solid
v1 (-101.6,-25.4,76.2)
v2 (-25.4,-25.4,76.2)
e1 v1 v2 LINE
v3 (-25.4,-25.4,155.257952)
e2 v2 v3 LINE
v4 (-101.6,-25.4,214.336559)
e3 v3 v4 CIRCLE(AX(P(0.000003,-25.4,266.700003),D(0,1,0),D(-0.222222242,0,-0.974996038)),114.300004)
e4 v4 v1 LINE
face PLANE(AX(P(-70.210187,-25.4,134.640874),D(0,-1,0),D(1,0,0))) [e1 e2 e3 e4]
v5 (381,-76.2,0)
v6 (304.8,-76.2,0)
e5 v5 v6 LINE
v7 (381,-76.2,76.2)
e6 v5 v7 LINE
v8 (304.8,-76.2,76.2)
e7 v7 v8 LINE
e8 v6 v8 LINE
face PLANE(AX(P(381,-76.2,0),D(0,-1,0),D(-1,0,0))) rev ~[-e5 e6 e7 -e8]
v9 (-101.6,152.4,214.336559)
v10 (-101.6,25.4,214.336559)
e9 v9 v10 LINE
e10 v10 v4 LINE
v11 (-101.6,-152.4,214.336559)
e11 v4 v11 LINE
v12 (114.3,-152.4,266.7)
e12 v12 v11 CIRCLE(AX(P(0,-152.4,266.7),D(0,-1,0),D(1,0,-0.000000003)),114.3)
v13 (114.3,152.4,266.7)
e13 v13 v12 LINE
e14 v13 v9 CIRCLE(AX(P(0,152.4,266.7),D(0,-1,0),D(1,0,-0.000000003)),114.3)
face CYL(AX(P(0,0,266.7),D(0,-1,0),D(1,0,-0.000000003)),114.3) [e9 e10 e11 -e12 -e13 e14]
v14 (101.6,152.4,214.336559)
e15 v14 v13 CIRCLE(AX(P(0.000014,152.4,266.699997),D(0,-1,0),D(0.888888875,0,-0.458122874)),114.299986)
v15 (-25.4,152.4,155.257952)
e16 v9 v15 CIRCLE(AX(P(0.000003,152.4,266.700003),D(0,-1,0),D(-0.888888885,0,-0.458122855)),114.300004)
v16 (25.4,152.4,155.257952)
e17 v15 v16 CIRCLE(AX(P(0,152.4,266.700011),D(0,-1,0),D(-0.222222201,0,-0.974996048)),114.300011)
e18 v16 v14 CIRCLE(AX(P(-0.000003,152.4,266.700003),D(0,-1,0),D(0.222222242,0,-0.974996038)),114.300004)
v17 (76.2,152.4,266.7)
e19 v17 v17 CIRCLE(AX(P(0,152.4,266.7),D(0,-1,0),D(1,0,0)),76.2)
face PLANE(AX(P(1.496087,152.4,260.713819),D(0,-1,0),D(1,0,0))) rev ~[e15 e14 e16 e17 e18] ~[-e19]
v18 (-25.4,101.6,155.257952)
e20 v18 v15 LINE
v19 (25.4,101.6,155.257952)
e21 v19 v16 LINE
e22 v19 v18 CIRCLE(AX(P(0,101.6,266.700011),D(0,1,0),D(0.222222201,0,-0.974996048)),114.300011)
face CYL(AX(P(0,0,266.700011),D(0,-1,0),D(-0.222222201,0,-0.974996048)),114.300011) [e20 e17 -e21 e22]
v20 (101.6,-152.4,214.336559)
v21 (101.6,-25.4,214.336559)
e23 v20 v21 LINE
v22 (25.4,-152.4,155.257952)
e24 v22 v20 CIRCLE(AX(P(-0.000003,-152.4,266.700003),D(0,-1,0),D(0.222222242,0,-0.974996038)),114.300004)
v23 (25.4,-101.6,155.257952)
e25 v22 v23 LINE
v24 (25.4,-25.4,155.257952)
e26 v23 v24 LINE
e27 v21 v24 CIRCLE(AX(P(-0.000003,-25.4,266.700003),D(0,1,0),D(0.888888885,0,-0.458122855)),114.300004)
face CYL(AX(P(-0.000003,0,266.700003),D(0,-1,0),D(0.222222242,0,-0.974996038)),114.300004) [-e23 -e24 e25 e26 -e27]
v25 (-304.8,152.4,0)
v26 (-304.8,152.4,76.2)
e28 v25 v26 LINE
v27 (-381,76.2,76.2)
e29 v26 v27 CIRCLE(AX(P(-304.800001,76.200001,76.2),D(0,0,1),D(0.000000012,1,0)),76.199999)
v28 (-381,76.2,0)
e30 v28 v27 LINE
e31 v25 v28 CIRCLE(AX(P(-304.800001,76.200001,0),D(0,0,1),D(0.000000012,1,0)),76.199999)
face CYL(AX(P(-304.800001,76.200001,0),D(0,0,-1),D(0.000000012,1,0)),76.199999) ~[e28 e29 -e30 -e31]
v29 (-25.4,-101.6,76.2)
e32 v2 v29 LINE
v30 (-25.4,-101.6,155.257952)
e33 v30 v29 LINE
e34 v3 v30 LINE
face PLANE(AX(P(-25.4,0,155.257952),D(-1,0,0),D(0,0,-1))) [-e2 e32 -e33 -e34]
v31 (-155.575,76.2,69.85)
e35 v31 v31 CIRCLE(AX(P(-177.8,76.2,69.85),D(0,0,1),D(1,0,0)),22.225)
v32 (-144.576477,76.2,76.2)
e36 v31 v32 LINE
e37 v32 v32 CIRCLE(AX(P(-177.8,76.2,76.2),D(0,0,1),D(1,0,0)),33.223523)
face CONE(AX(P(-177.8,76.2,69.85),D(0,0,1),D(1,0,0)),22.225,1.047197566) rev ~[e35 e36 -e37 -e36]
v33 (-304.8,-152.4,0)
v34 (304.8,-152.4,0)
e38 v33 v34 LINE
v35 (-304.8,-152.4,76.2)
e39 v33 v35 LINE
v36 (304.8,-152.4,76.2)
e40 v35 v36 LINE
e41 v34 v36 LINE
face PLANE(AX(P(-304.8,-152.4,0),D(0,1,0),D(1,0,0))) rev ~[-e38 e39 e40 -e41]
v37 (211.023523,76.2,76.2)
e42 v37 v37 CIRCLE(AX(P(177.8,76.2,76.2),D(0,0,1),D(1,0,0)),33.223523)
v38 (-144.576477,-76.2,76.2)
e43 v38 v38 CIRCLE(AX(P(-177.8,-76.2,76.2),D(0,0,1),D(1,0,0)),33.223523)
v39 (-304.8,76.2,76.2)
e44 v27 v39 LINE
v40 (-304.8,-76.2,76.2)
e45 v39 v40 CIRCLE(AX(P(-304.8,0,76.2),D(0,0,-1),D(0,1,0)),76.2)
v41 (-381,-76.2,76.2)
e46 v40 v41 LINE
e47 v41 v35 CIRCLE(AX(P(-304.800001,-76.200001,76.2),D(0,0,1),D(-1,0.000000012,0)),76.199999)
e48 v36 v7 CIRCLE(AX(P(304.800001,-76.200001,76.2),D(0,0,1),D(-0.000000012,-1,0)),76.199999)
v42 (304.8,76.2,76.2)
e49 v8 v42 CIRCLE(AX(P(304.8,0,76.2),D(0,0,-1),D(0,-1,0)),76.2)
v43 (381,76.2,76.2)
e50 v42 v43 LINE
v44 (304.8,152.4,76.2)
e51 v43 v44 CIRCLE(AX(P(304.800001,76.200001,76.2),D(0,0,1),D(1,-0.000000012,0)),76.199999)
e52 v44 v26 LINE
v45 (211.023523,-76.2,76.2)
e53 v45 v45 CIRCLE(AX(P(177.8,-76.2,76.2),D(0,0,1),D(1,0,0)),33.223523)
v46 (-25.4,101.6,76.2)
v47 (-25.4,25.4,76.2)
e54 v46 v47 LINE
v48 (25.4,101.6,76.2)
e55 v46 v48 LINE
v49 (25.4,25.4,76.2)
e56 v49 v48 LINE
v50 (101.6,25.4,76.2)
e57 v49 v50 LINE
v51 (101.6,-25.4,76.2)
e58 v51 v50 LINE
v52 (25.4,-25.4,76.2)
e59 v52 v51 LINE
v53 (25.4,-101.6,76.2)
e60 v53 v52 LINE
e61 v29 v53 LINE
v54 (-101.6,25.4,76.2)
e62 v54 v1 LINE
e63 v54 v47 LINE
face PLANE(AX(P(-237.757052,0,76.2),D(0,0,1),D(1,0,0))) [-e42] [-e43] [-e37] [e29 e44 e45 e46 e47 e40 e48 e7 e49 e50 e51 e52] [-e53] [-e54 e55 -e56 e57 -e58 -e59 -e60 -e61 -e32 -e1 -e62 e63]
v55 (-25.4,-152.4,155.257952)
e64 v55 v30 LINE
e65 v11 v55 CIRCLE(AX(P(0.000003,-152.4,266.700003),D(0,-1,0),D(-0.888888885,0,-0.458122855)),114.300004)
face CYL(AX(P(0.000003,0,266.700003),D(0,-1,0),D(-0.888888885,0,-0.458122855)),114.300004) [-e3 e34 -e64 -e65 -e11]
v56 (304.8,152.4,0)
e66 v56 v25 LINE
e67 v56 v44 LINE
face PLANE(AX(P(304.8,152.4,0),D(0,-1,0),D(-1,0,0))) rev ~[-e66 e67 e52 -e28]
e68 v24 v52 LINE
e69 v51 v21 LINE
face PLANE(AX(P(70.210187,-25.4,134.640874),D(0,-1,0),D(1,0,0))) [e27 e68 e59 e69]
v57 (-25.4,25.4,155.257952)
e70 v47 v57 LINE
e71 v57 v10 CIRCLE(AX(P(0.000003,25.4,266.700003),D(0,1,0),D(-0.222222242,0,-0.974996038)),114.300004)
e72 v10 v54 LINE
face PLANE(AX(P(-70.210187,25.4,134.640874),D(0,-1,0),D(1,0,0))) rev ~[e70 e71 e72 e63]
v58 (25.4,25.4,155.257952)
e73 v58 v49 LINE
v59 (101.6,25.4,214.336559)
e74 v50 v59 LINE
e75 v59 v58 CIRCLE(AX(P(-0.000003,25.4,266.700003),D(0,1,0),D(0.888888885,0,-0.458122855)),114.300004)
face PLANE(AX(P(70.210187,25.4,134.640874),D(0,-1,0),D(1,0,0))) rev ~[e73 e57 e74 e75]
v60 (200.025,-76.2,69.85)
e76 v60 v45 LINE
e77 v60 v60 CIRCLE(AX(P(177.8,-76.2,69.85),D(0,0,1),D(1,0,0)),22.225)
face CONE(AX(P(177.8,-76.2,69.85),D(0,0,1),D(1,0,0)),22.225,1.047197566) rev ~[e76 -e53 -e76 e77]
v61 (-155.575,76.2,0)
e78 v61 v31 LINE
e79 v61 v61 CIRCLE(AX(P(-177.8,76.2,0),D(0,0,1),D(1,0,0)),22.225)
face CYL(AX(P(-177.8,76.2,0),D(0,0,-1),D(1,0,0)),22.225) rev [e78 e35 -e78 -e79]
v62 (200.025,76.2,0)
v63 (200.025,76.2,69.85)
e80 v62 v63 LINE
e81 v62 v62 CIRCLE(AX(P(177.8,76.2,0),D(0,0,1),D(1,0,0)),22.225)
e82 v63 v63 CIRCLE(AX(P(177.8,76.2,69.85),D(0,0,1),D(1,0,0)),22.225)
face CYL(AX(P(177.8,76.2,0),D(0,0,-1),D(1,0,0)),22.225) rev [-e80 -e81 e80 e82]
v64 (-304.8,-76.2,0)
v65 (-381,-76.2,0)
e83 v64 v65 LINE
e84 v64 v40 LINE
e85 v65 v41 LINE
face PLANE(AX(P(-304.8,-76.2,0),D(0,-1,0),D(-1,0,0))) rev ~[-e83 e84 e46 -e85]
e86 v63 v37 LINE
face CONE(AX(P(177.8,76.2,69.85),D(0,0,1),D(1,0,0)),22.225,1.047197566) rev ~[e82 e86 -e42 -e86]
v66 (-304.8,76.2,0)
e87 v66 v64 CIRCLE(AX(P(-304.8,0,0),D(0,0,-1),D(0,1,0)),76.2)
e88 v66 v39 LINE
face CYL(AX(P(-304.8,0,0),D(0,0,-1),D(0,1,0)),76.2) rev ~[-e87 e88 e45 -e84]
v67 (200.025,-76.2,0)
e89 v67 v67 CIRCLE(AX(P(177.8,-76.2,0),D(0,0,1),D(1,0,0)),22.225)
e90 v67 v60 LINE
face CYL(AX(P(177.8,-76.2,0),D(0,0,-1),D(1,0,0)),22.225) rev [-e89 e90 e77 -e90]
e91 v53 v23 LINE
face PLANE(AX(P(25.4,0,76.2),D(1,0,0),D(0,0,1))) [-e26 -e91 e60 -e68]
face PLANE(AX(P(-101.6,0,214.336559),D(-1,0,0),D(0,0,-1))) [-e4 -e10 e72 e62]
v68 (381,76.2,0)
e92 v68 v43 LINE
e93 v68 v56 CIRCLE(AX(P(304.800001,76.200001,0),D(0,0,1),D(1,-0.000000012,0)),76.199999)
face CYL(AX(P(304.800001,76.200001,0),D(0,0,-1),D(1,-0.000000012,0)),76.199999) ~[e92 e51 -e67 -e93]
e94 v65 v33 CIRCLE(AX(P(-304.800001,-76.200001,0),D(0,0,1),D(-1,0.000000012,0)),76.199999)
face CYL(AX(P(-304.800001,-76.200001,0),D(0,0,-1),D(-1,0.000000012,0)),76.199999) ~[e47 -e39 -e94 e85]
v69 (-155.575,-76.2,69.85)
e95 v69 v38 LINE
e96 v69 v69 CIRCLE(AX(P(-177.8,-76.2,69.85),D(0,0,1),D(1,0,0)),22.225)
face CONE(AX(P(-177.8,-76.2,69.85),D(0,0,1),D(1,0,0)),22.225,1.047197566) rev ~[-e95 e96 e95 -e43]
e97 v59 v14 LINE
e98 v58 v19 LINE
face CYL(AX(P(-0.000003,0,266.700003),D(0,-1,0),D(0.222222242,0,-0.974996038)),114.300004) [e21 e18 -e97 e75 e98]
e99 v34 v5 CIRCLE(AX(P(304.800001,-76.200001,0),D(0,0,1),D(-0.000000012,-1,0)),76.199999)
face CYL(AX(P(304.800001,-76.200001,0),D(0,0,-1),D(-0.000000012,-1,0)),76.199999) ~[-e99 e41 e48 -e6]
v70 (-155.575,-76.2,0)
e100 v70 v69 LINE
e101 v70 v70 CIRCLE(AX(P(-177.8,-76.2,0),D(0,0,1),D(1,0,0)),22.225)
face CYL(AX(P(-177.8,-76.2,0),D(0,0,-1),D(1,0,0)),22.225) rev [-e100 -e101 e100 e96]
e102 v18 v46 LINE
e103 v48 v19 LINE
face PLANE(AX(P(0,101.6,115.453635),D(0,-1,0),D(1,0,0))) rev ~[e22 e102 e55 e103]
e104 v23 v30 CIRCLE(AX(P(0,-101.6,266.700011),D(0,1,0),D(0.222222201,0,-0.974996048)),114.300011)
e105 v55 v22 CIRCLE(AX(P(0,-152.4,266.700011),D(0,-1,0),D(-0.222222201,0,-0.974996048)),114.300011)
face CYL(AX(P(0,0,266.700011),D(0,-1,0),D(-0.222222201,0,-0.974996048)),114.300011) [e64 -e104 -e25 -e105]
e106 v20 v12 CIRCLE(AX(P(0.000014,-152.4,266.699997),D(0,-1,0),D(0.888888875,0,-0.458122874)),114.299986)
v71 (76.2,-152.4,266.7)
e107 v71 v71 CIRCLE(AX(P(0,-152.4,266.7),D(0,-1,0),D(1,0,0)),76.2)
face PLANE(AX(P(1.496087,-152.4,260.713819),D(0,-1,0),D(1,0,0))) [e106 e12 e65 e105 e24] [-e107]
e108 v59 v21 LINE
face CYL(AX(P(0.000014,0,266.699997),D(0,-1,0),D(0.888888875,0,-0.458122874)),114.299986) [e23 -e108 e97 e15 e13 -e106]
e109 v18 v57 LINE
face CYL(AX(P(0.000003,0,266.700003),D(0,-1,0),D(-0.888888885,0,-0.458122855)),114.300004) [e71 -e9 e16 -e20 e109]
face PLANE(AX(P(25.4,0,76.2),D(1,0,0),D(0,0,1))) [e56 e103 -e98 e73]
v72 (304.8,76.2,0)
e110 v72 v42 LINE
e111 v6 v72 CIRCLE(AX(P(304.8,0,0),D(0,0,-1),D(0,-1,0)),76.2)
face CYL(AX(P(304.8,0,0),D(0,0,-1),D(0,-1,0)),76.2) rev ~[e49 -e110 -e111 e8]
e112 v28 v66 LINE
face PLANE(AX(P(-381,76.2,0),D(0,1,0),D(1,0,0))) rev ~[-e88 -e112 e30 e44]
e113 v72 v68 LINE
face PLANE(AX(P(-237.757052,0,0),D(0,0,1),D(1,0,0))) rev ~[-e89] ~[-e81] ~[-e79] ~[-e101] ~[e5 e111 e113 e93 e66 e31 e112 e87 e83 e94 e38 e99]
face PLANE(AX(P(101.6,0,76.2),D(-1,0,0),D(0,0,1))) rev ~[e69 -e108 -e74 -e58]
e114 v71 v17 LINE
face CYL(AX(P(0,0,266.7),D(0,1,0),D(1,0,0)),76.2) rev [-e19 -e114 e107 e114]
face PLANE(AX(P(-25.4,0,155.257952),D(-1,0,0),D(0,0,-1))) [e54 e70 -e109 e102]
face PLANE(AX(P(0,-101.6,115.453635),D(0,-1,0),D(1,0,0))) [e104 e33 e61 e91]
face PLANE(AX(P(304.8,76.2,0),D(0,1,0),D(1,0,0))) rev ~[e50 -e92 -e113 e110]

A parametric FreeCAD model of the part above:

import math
import FreeCAD as App
import Part
import Sketcher
Q = App.Units.Quantity


def edges_at(feature, points):
    """Names of the edges that pass closest to the given points."""
    edges = feature.Shape.Edges
    near = lambda p: min(range(len(edges)), key=lambda i: edges[i].distToShape(Part.Vertex(*p))[0])
    return sorted({f"Edge{near(p) + 1}" for p in points})

doc = App.newDocument("Part")
params = doc.addObject("Spreadsheet::Sheet", "Params")
for row, (alias, value) in enumerate([
    ("sketch1_radius", "3 in"),
    ("sketch1_diameter", "1.75 in"),
    ("sketch1_width", "24 in"),
    ("pad1_length", "3 in"),
    ("chamfer_size", "0.25 in"),
    ("chamfer_size2", "10.998523 mm"),
    ("sketch2_width", "2 in"),
    ("pad2_length", "8 in"),
    ("sketch3_radius", "4.5000002 in"),
    ("sketch3_width", "3 in"),
    ("pad3_length", "2 in"),
    ("sketch4_diameter", "6 in"),
    ("sketch4_radius", "4.5 in"),
    ("pad4_length", "12 in"),
], start=1):
    params.set(f"A{row}", alias)
    params.set(f"B{row}", "=" + value)
    params.setAlias(f"B{row}", alias)

body = doc.addObject("PartDesign::Body", "Body")

sketch1 = body.newObject("Sketcher::SketchObject", "Sketch")
sketch1.AttachmentSupport = (doc.getObject("XY_Plane"), [""])
sketch1.MapMode = "FlatFace"
sketch1.addGeometry([
    Part.ArcOfCircle(Part.Circle(App.Vector(-305, 76, 0), App.Vector(0, 0, 1), 76), math.radians(90), math.radians(180)),
    Part.LineSegment(App.Vector(-381, 76, 0), App.Vector(-305, 76, 0)),
    Part.ArcOfCircle(Part.Circle(App.Vector(-305, 0, 0), App.Vector(0, 0, 1), 76), math.radians(-90), math.radians(90)),
    Part.LineSegment(App.Vector(-305, -76, 0), App.Vector(-381, -76, 0)),
    Part.ArcOfCircle(Part.Circle(App.Vector(-305, -76, 0), App.Vector(0, 0, 1), 76), math.radians(180), math.radians(270)),
    Part.LineSegment(App.Vector(-305, -152, 0), App.Vector(305, -152, 0)),
    Part.ArcOfCircle(Part.Circle(App.Vector(305, -76, 0), App.Vector(0, 0, 1), 76), math.radians(-90), math.radians(0)),
    Part.LineSegment(App.Vector(381, -76, 0), App.Vector(305, -76, 0)),
    Part.ArcOfCircle(Part.Circle(App.Vector(305, 0, 0), App.Vector(0, 0, 1), 76), math.radians(90), math.radians(270)),
    Part.LineSegment(App.Vector(305, 76, 0), App.Vector(381, 76, 0)),
    Part.ArcOfCircle(Part.Circle(App.Vector(305, 76, 0), App.Vector(0, 0, 1), 76), math.radians(0), math.radians(90)),
    Part.LineSegment(App.Vector(305, 152, 0), App.Vector(-305, 152, 0)),
    Part.Circle(App.Vector(-178, -76, 0), App.Vector(0, 0, 1), 22),
    Part.Circle(App.Vector(178, -76, 0), App.Vector(0, 0, 1), 22),
    Part.Circle(App.Vector(-178, 76, 0), App.Vector(0, 0, 1), 22),
    Part.Circle(App.Vector(178, 76, 0), App.Vector(0, 0, 1), 22),
], False)
sketch1.addConstraint([
    Sketcher.Constraint("Coincident", 0, 2, 1, 1),
    Sketcher.Constraint("Tangent", 1, 2, 2, 2),
    Sketcher.Constraint("Tangent", 2, 1, 3, 1),
    Sketcher.Constraint("Coincident", 3, 2, 4, 1),
    Sketcher.Constraint("Tangent", 4, 2, 5, 1),
    Sketcher.Constraint("Tangent", 5, 2, 6, 1),
    Sketcher.Constraint("Coincident", 6, 2, 7, 1),
    Sketcher.Constraint("Tangent", 7, 2, 8, 2),
    Sketcher.Constraint("Tangent", 8, 1, 9, 1),
    Sketcher.Constraint("Coincident", 9, 2, 10, 1),
    Sketcher.Constraint("Tangent", 10, 2, 11, 1),
    Sketcher.Constraint("Tangent", 11, 2, 0, 1),
    Sketcher.Constraint("Horizontal", 1),
    Sketcher.Constraint("Horizontal", 3),
    Sketcher.Constraint("Horizontal", 5),
    Sketcher.Constraint("Horizontal", 7),
    Sketcher.Constraint("Horizontal", 9),
    Sketcher.Constraint("Horizontal", 11),
    Sketcher.Constraint("Coincident", 1, 2, 0, 3),
    Sketcher.Constraint("Coincident", 2, 1, 4, 3),
    Sketcher.Constraint("Coincident", 7, 2, 6, 3),
    Sketcher.Constraint("Coincident", 8, 1, 10, 3),
    Sketcher.Constraint("Equal", 0, 2),
    Sketcher.Constraint("Equal", 2, 4),
    Sketcher.Constraint("Equal", 4, 6),
    Sketcher.Constraint("Equal", 6, 8),
    Sketcher.Constraint("Equal", 12, 13),
    Sketcher.Constraint("Equal", 13, 14),
    Sketcher.Constraint("Equal", 14, 15),
    Sketcher.Constraint("Symmetric", 0, 3, 6, 3, -1, 1),
    Sketcher.Constraint("Symmetric", 13, 3, 14, 3, -1, 1),
    Sketcher.Constraint("Symmetric", 12, 3, 15, 3, -1, 1),
    Sketcher.Constraint("Symmetric", 12, 3, 13, 3, -2),
    Sketcher.Constraint("Horizontal", 6, 3, 12, 3),
    Sketcher.Constraint("Radius", 0, Q("3 in")),
    Sketcher.Constraint("Diameter", 12, Q("1.75 in")),
    Sketcher.Constraint("DistanceX", 5, 1, 5, 2, Q("24 in")),
    Sketcher.Constraint("DistanceX", 12, 3, -1, 1, Q("7 in")),
])
sketch1.setExpression("Constraints[34]", "Params.sketch1_radius")
sketch1.setExpression("Constraints[35]", "Params.sketch1_diameter")
sketch1.setExpression("Constraints[36]", "Params.sketch1_width")
pad1 = body.newObject("PartDesign::Pad", "Pad")
pad1.Profile = sketch1
pad1.setExpression("Length", "Params.pad1_length")
doc.recompute()

chamfer = body.newObject("PartDesign::Chamfer", "Chamfer")
chamfer.Base = (pad1, edges_at(pad1, [
    (-200.025, 76.2, 76.2),
    (-200.025, -76.2, 76.2),
    (155.575, -76.2, 76.2),
    (155.575, 76.2, 76.2),
]))
chamfer.ChamferType = "Two distances"
chamfer.setExpression("Size", "Params.chamfer_size")
chamfer.setExpression("Size2", "Params.chamfer_size2")

sketch2 = body.newObject("Sketcher::SketchObject", "Sketch001")
sketch2.AttachmentSupport = (doc.getObject("XZ_Plane"), [""])
sketch2.MapMode = "FlatFace"
sketch2.addGeometry([
    Part.ArcOfCircle(Part.Circle(App.Vector(0, 267, 0), App.Vector(0, 0, 1), 114), math.radians(-103), math.radians(-77)),
    Part.LineSegment(App.Vector(-25, 155, 0), App.Vector(-25, 76, 0)),
    Part.LineSegment(App.Vector(-25, 76, 0), App.Vector(25, 76, 0)),
    Part.LineSegment(App.Vector(25, 76, 0), App.Vector(25, 155, 0)),
], False)
sketch2.addConstraint([
    Sketcher.Constraint("Coincident", 0, 1, 1, 1),
    Sketcher.Constraint("Coincident", 1, 2, 2, 1),
    Sketcher.Constraint("Coincident", 2, 2, 3, 1),
    Sketcher.Constraint("Coincident", 3, 2, 0, 2),
    Sketcher.Constraint("Vertical", 1),
    Sketcher.Constraint("Horizontal", 2),
    Sketcher.Constraint("Vertical", 3),
    Sketcher.Constraint("Symmetric", 0, 1, 3, 2, -2),
    Sketcher.Constraint("DistanceX", 2, 1, 2, 2, Q("2 in")),
    Sketcher.Constraint("DistanceY", -1, 1, 1, 2, Q("3 in")),
    Sketcher.Constraint("Radius", 0, 114.300011),
    Sketcher.Constraint("DistanceY", 1, 2, 1, 1, 79.057952),
])
sketch2.setExpression("Constraints[8]", "Params.sketch2_width")
pad2 = body.newObject("PartDesign::Pad", "Pad001")
pad2.Profile = sketch2
pad2.setExpression("Length", "Params.pad2_length")
pad2.Midplane = True

sketch3 = body.newObject("Sketcher::SketchObject", "Sketch002")
sketch3.AttachmentSupport = (doc.getObject("XZ_Plane"), [""])
sketch3.MapMode = "FlatFace"
sketch3.addGeometry([
    Part.LineSegment(App.Vector(102, 76, 0), App.Vector(102, 214, 0)),
    Part.ArcOfCircle(Part.Circle(App.Vector(0, 267, 0), App.Vector(0, 0, 1), 114), math.radians(-77), math.radians(-27)),
    Part.LineSegment(App.Vector(25, 155, 0), App.Vector(25, 76, 0)),
    Part.LineSegment(App.Vector(25, 76, 0), App.Vector(102, 76, 0)),
    Part.ArcOfCircle(Part.Circle(App.Vector(0, 267, 0), App.Vector(0, 0, 1), 114), math.radians(-153), math.radians(-103)),
    Part.LineSegment(App.Vector(-102, 214, 0), App.Vector(-102, 76, 0)),
    Part.LineSegment(App.Vector(-102, 76, 0), App.Vector(-25, 76, 0)),
    Part.LineSegment(App.Vector(-25, 76, 0), App.Vector(-25, 155, 0)),
], False)
sketch3.addConstraint([
    Sketcher.Constraint("Coincident", 0, 2, 1, 2),
    Sketcher.Constraint("Coincident", 1, 1, 2, 1),
    Sketcher.Constraint("Coincident", 2, 2, 3, 1),
    Sketcher.Constraint("Coincident", 3, 2, 0, 1),
    Sketcher.Constraint("Coincident", 4, 1, 5, 1),
    Sketcher.Constraint("Coincident", 5, 2, 6, 1),
    Sketcher.Constraint("Coincident", 6, 2, 7, 1),
    Sketcher.Constraint("Coincident", 7, 2, 4, 2),
    Sketcher.Constraint("Vertical", 0),
    Sketcher.Constraint("Vertical", 2),
    Sketcher.Constraint("Horizontal", 3),
    Sketcher.Constraint("Vertical", 5),
    Sketcher.Constraint("Horizontal", 6),
    Sketcher.Constraint("Vertical", 7),
    Sketcher.Constraint("Coincident", 4, 3, 1, 3),
    Sketcher.Constraint("Equal", 1, 4),
    Sketcher.Constraint("Symmetric", 0, 2, 4, 1, -2),
    Sketcher.Constraint("Symmetric", 2, 2, 6, 2, -2),
    Sketcher.Constraint("Radius", 1, Q("4.5000002 in")),
    Sketcher.Constraint("DistanceX", 3, 1, 3, 2, Q("3 in")),
    Sketcher.Constraint("DistanceX", -1, 1, 0, 2, Q("4 in")),
    Sketcher.Constraint("DistanceY", -1, 1, 2, 2, Q("3 in")),
    Sketcher.Constraint("DistanceY", -1, 1, 1, 3, Q("10.5000001 in")),
])
sketch3.setExpression("Constraints[18]", "Params.sketch3_radius")
sketch3.setExpression("Constraints[19]", "Params.sketch3_width")
pad3 = body.newObject("PartDesign::Pad", "Pad002")
pad3.Profile = sketch3
pad3.setExpression("Length", "Params.pad3_length")
pad3.Midplane = True

sketch4 = body.newObject("Sketcher::SketchObject", "Sketch003")
sketch4.AttachmentSupport = (doc.getObject("XZ_Plane"), [""])
sketch4.MapMode = "FlatFace"
sketch4.addGeometry([
    Part.ArcOfCircle(Part.Circle(App.Vector(0, 267, 0), App.Vector(0, 0, 1), 114), math.radians(-27), math.radians(0)),
    Part.ArcOfCircle(Part.Circle(App.Vector(0, 267, 0), App.Vector(0, 0, 1), 114), math.radians(0), math.radians(207)),
    Part.ArcOfCircle(Part.Circle(App.Vector(0, 267, 0), App.Vector(0, 0, 1), 114), math.radians(-153), math.radians(-103)),
    Part.ArcOfCircle(Part.Circle(App.Vector(0, 267, 0), App.Vector(0, 0, 1), 114), math.radians(-103), math.radians(-77)),
    Part.ArcOfCircle(Part.Circle(App.Vector(0, 267, 0), App.Vector(0, 0, 1), 114), math.radians(-77), math.radians(-27)),
    Part.Circle(App.Vector(0, 267, 0), App.Vector(0, 0, 1), 76),
], False)
sketch4.addConstraint([
    Sketcher.Constraint("Tangent", 0, 2, 1, 1),
    Sketcher.Constraint("Tangent", 1, 2, 2, 1),
    Sketcher.Constraint("Tangent", 2, 2, 3, 1),
    Sketcher.Constraint("Tangent", 3, 2, 4, 1),
    Sketcher.Constraint("Tangent", 4, 2, 0, 1),
    Sketcher.Constraint("Coincident", 4, 3, 1, 3),
    Sketcher.Constraint("Coincident", 5, 3, 1, 3),
    Sketcher.Constraint("Symmetric", 2, 2, 3, 2, -2),
    Sketcher.Constraint("Horizontal", 5, 3, 0, 2),
    Sketcher.Constraint("Horizontal", 1, 2, 4, 2),
    Sketcher.Constraint("Diameter", 5, Q("6 in")),
    Sketcher.Constraint("Radius", 1, Q("4.5 in")),
    Sketcher.Constraint("DistanceX", 1, 2, -1, 1, Q("4 in")),
    Sketcher.Constraint("DistanceX", 2, 2, -1, 1, Q("1 in")),
    Sketcher.Constraint("DistanceY", -1, 1, 0, 3, Q("10.4999999 in")),
])
sketch4.setExpression("Constraints[10]", "Params.sketch4_diameter")
sketch4.setExpression("Constraints[11]", "Params.sketch4_radius")
pad4 = body.newObject("PartDesign::Pad", "Pad003")
pad4.Profile = sketch4
pad4.setExpression("Length", "Params.pad4_length")
pad4.Midplane = True

doc.recompute()
